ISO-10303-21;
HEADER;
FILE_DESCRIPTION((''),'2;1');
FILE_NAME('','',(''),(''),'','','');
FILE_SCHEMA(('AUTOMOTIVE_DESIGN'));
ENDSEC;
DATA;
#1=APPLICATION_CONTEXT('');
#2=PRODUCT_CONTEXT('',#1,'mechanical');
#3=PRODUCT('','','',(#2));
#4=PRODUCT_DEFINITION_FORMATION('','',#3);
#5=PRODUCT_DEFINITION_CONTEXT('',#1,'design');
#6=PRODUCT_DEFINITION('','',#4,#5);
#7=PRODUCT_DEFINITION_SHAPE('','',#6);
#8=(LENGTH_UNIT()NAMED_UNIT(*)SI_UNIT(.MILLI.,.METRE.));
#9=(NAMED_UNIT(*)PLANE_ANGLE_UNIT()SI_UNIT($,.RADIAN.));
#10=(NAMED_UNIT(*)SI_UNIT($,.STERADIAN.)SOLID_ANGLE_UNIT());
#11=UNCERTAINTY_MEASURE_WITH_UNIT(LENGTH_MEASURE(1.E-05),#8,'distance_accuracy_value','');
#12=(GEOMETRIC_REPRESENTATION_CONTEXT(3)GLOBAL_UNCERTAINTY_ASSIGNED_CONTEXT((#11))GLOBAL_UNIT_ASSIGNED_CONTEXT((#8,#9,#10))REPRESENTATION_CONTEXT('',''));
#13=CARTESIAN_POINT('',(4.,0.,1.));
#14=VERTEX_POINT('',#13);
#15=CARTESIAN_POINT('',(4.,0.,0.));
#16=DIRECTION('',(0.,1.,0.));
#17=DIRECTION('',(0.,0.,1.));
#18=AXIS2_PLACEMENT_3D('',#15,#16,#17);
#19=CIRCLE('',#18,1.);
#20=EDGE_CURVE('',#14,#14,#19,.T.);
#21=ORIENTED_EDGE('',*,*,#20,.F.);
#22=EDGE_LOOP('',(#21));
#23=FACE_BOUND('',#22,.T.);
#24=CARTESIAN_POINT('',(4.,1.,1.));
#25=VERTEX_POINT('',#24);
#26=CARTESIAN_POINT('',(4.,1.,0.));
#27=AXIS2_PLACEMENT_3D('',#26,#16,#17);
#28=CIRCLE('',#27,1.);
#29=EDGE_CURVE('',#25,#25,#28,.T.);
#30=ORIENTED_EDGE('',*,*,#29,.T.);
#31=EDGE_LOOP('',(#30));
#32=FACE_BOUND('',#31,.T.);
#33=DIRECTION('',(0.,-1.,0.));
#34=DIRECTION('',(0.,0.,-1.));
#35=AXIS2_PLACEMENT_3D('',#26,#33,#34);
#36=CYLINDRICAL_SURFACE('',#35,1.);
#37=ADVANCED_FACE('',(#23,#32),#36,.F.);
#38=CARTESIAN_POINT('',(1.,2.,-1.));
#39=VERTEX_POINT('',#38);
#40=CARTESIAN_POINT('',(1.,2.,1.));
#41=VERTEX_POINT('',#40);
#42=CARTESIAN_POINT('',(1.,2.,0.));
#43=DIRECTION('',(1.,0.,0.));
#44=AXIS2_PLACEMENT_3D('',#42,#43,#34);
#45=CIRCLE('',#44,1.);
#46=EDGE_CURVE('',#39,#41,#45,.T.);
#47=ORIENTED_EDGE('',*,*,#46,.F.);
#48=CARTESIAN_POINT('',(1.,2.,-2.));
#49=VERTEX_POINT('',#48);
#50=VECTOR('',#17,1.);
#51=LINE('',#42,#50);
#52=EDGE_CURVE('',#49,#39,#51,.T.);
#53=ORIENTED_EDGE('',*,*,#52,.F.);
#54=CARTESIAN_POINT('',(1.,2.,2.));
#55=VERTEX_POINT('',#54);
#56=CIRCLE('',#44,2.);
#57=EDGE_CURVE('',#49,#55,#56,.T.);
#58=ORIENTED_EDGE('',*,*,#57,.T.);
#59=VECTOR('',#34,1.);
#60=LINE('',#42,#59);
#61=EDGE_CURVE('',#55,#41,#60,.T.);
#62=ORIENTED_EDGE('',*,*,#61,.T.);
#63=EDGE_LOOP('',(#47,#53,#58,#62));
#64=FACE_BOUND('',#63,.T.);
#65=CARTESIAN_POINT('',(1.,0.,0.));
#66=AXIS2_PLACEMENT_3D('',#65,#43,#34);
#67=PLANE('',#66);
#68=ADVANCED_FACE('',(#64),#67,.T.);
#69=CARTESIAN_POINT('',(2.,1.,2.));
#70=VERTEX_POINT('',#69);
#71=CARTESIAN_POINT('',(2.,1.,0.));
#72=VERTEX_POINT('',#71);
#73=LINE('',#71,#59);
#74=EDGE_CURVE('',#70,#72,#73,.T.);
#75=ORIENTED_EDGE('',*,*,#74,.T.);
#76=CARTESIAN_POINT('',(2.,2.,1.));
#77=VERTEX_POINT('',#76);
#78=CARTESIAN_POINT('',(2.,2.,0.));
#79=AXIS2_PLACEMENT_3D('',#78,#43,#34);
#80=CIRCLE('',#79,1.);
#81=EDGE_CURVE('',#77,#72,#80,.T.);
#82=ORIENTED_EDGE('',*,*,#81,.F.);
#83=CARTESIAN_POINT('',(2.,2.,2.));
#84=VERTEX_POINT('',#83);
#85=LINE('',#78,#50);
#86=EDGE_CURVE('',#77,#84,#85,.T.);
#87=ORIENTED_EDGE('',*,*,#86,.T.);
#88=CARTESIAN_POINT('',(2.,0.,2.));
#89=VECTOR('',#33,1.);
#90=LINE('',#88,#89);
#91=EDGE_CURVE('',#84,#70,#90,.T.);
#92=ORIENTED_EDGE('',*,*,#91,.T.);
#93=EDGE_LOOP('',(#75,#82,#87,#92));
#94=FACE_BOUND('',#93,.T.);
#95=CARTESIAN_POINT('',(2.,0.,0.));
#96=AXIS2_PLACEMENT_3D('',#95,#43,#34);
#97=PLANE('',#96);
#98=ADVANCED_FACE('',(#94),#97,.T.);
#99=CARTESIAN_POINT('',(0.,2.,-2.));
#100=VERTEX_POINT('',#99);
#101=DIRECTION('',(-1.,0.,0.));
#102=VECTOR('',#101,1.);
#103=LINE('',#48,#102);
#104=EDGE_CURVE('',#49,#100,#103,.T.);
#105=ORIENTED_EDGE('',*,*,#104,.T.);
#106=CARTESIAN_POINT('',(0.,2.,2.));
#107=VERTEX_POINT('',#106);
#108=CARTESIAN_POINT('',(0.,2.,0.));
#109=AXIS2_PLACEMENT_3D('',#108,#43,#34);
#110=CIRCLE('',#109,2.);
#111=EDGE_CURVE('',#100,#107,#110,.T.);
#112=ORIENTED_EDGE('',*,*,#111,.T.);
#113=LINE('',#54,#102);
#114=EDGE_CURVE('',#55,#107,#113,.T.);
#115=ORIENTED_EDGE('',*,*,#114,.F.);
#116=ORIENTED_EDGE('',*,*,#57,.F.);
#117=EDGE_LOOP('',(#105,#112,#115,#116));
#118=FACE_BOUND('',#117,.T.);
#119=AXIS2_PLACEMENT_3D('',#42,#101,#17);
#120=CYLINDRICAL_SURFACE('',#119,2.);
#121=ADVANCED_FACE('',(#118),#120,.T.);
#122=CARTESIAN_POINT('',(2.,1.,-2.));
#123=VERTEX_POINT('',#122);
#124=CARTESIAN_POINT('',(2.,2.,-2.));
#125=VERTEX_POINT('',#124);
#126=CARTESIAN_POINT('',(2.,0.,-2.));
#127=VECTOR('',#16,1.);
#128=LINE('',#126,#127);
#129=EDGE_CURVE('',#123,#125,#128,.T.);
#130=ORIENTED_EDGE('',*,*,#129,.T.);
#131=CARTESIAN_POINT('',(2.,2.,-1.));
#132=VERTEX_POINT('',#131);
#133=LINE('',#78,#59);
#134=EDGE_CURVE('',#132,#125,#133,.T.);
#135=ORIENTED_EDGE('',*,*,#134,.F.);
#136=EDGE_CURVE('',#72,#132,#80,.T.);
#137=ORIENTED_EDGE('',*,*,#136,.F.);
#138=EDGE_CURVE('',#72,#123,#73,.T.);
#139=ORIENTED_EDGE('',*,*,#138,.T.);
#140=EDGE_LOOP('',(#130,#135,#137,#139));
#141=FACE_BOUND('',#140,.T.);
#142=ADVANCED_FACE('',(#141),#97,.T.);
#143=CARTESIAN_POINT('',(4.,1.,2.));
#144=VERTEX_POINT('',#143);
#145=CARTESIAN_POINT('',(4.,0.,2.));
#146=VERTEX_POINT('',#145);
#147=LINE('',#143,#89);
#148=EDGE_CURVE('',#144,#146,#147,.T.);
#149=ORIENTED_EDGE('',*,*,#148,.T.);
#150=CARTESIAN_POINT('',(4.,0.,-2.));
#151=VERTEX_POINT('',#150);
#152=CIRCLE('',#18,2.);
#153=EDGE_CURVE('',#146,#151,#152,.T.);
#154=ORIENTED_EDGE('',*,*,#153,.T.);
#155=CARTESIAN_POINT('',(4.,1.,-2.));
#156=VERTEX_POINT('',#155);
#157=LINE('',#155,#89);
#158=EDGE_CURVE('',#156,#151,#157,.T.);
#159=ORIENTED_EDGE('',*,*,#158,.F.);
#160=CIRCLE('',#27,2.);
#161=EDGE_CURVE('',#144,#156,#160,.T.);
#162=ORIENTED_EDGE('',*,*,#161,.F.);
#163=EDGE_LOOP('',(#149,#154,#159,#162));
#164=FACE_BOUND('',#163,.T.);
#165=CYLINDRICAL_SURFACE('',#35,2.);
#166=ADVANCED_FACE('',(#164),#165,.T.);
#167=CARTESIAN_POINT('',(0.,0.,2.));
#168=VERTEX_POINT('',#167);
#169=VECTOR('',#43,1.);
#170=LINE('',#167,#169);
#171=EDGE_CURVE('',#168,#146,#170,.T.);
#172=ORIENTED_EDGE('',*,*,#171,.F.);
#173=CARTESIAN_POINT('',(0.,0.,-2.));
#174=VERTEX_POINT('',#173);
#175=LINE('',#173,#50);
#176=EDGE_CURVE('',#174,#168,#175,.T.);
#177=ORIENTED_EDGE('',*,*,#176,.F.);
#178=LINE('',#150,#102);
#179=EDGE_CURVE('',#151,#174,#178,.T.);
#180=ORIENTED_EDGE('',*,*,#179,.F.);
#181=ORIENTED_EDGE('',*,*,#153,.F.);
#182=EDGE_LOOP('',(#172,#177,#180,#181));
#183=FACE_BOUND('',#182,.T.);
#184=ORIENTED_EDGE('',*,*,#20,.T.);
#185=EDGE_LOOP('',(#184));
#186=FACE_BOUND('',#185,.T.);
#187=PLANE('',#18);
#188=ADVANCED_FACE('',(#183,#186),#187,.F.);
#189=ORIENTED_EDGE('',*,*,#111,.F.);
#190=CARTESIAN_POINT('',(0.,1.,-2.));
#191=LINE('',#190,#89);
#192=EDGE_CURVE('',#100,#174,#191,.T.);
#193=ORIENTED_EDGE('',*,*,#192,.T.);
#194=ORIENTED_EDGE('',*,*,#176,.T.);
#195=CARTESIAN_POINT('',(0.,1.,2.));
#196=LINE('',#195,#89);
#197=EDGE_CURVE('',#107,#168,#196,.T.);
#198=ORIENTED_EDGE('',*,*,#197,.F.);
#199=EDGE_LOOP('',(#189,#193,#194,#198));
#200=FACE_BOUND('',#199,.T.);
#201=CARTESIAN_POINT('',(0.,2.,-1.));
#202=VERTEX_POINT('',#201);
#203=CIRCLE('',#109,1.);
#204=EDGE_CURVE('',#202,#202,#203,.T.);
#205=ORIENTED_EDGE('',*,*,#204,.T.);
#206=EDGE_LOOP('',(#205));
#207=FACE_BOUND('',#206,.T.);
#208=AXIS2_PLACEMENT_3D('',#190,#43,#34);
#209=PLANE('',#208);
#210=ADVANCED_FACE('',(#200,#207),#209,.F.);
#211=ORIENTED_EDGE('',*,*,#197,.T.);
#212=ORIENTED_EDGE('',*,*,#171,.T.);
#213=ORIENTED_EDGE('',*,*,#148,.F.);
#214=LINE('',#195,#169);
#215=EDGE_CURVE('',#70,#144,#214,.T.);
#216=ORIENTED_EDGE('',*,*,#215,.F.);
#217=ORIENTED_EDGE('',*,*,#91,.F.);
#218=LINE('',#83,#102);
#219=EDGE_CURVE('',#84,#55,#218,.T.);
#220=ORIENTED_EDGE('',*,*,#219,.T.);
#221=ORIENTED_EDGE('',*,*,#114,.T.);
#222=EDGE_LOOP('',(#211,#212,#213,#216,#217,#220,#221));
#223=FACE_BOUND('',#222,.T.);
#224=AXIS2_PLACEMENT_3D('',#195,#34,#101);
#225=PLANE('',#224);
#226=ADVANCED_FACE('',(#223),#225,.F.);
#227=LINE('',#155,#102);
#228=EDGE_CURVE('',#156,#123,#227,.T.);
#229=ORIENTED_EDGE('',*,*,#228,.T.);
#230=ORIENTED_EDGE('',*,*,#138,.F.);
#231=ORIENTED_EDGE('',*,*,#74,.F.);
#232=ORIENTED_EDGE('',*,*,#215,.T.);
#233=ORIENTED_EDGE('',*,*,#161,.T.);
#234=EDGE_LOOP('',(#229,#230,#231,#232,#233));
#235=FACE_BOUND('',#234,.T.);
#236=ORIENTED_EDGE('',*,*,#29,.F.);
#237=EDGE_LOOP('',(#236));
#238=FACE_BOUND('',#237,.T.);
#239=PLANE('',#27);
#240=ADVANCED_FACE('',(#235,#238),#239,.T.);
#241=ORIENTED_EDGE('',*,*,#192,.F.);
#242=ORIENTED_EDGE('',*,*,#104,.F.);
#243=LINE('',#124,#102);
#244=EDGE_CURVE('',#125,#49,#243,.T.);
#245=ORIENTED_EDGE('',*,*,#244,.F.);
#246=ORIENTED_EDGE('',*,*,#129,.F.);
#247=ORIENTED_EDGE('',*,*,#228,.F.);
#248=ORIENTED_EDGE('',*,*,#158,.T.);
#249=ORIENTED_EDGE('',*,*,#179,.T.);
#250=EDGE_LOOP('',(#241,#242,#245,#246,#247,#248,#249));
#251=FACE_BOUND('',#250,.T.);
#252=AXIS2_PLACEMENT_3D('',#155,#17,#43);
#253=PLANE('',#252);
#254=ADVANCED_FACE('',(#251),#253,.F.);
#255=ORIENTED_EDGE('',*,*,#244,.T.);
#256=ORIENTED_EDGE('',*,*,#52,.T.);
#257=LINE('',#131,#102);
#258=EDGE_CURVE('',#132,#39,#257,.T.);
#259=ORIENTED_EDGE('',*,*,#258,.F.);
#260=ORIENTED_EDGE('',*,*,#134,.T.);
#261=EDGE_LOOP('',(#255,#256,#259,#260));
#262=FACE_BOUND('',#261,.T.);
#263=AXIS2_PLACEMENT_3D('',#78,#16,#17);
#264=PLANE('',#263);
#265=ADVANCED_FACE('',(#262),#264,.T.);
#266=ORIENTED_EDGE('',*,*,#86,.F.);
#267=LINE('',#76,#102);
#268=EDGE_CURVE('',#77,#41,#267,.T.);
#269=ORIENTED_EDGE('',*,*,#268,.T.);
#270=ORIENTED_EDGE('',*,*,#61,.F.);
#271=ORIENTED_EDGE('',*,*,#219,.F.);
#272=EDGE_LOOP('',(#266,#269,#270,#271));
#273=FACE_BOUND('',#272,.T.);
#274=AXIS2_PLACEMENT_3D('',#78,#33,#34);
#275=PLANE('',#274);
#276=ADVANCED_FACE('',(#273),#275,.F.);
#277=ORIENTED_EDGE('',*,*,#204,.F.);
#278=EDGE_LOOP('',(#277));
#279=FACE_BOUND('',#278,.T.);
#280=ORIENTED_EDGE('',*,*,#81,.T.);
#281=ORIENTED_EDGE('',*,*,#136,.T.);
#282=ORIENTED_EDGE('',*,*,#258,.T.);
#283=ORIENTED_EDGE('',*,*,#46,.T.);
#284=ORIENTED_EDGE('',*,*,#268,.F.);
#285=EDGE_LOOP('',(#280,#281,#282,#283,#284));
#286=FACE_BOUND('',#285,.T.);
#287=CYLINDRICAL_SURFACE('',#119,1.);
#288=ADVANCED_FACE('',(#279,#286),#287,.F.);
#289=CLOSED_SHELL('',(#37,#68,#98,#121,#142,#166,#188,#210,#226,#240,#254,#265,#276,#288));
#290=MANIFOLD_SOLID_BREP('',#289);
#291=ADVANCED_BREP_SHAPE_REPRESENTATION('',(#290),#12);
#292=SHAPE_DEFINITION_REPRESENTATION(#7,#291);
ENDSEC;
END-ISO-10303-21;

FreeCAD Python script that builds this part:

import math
import FreeCAD as App
import Part
import Sketcher

V = App.Vector
Q = App.Units.Quantity

doc = App.newDocument("Part")
params = doc.addObject("Spreadsheet::Sheet", "Params")
for row, (alias, value) in enumerate([
    ("sketch1_diameter", "2 mm"),
    ("sketch1_radius", "2 mm"),
    ("pad1_length", "1 mm"),
    ("sketch2_diameter", "2 mm"),
    ("sketch2_radius", "2 mm"),
    ("sketch2_width", "2 mm"),
    ("pad2_length", "1 mm"),
    ("sketch3_radius", "0.999999 mm"),
    ("sketch3_width", "2 mm"),
    ("sketch3_height", "4 mm"),
    ("pad3_length", "2 mm"),
], start=1):
    params.set(f"A{row}", alias)
    params.set(f"B{row}", "=" + value)
    params.setAlias(f"B{row}", alias)

body = doc.addObject("PartDesign::Body", "Body")

# Sketch on XZ plane
sketch1 = doc.addObject("Sketcher::SketchObject", "Sketch")
body.addObject(sketch1)
sketch1.AttachmentSupport = (doc.XZ_Plane, [""])
sketch1.MapMode = "FlatFace"
sketch1.addGeometry(Part.LineSegment(V(4, -2, 0), V(0, -2, 0)), False)
sketch1.addGeometry(Part.LineSegment(V(0, -2, 0), V(0, 2, 0)), False)
sketch1.addGeometry(Part.LineSegment(V(0, 2, 0), V(4, 2, 0)), False)
sketch1.addGeometry(Part.ArcOfCircle(Part.Circle(V(4, 0, 0), V(0, 0, 1), 2), math.radians(-90), math.radians(90)), False)
sketch1.addGeometry(Part.Circle(V(4, 0, 0), V(0, 0, 1), 1), False)
sketch1.addConstraint(Sketcher.Constraint("Coincident", 0, 2, 1, 1))
sketch1.addConstraint(Sketcher.Constraint("Coincident", 1, 2, 2, 1))
sketch1.addConstraint(Sketcher.Constraint("Tangent", 2, 2, 3, 2))
sketch1.addConstraint(Sketcher.Constraint("Tangent", 3, 1, 0, 1))
sketch1.addConstraint(Sketcher.Constraint("Horizontal", 0))
sketch1.addConstraint(Sketcher.Constraint("Vertical", 1))
sketch1.addConstraint(Sketcher.Constraint("Horizontal", 2))
sketch1.addConstraint(Sketcher.Constraint("Coincident", 4, 3, 3, 3))
sketch1.addConstraint(Sketcher.Constraint("Symmetric", 0, 2, 1, 2, -1, 1))
sketch1.addConstraint(Sketcher.Constraint("Equal", 2, 1))
sketch1.addConstraint(Sketcher.Constraint("Diameter", 4, Q("2 mm")))
sketch1.addConstraint(Sketcher.Constraint("Radius", 3, Q("2 mm")))
sketch1.setExpression("Constraints[10]", "Params.sketch1_diameter")
sketch1.setExpression("Constraints[11]", "Params.sketch1_radius")
pad1 = doc.addObject("PartDesign::Pad", "Pad")
body.addObject(pad1)
pad1.Profile = sketch1
pad1.setExpression("Length", "Params.pad1_length")
pad1.Reversed = True

# Sketch on YZ plane
sketch2 = doc.addObject("Sketcher::SketchObject", "Sketch001")
body.addObject(sketch2)
sketch2.AttachmentSupport = (doc.YZ_Plane, [""])
sketch2.MapMode = "FlatFace"
sketch2.addGeometry(Part.LineSegment(V(2, 2, 0), V(0, 2, 0)), False)
sketch2.addGeometry(Part.LineSegment(V(0, 2, 0), V(0, -2, 0)), False)
sketch2.addGeometry(Part.LineSegment(V(0, -2, 0), V(2, -2, 0)), False)
sketch2.addGeometry(Part.ArcOfCircle(Part.Circle(V(2, 0, 0), V(0, 0, 1), 2), math.radians(-90), math.radians(90)), False)
sketch2.addGeometry(Part.Circle(V(2, 0, 0), V(0, 0, 1), 1), False)
sketch2.addConstraint(Sketcher.Constraint("Coincident", 0, 2, 1, 1))
sketch2.addConstraint(Sketcher.Constraint("Coincident", 1, 2, 2, 1))
sketch2.addConstraint(Sketcher.Constraint("Tangent", 2, 2, 3, 1))
sketch2.addConstraint(Sketcher.Constraint("Tangent", 3, 2, 0, 1))
sketch2.addConstraint(Sketcher.Constraint("Horizontal", 0))
sketch2.addConstraint(Sketcher.Constraint("Vertical", 1))
sketch2.addConstraint(Sketcher.Constraint("Horizontal", 2))
sketch2.addConstraint(Sketcher.Constraint("Coincident", 4, 3, 3, 3))
sketch2.addConstraint(Sketcher.Constraint("Symmetric", 0, 2, 1, 2, -1, 1))
sketch2.addConstraint(Sketcher.Constraint("Diameter", 4, Q("2 mm")))
sketch2.addConstraint(Sketcher.Constraint("Radius", 3, Q("2 mm")))
sketch2.addConstraint(Sketcher.Constraint("DistanceX", 0, 2, 0, 1, Q("2 mm")))
sketch2.setExpression("Constraints[9]", "Params.sketch2_diameter")
sketch2.setExpression("Constraints[10]", "Params.sketch2_radius")
sketch2.setExpression("Constraints[11]", "Params.sketch2_width")
pad2 = doc.addObject("PartDesign::Pad", "Pad001")
body.addObject(pad2)
pad2.Profile = sketch2
pad2.setExpression("Length", "Params.pad2_length")

# Sketch on YZ plane
sketch3 = doc.addObject("Sketcher::SketchObject", "Sketch002")
body.addObject(sketch3)
sketch3.AttachmentSupport = (doc.YZ_Plane, [""])
sketch3.MapMode = "FlatFace"
sketch3.addGeometry(Part.LineSegment(V(0, 2, 0), V(0, -2, 0)), False)
sketch3.addGeometry(Part.LineSegment(V(0, -2, 0), V(2, -2, 0)), False)
sketch3.addGeometry(Part.LineSegment(V(2, -2, 0), V(2, -1, 0)), False)
sketch3.addGeometry(Part.ArcOfCircle(Part.Circle(V(1.999999, -0.000001, 0), V(0, 0, 1), 0.999999), math.radians(179.999957), math.radians(270.000043)), False)
sketch3.addGeometry(Part.ArcOfCircle(Part.Circle(V(1.999999, 0.000001, 0), V(0, 0, 1), 0.999999), math.radians(89.999957), math.radians(180.000043)), False)
sketch3.addGeometry(Part.LineSegment(V(2, 1, 0), V(2, 2, 0)), False)
sketch3.addGeometry(Part.LineSegment(V(2, 2, 0), V(0, 2, 0)), False)
sketch3.addConstraint(Sketcher.Constraint("Coincident", 0, 2, 1, 1))
sketch3.addConstraint(Sketcher.Constraint("Coincident", 1, 2, 2, 1))
sketch3.addConstraint(Sketcher.Constraint("Coincident", 2, 2, 3, 2))
sketch3.addConstraint(Sketcher.Constraint("Tangent", 3, 1, 4, 2))
sketch3.addConstraint(Sketcher.Constraint("Coincident", 4, 1, 5, 1))
sketch3.addConstraint(Sketcher.Constraint("Coincident", 5, 2, 6, 1))
sketch3.addConstraint(Sketcher.Constraint("Coincident", 6, 2, 0, 1))
sketch3.addConstraint(Sketcher.Constraint("Vertical", 0))
sketch3.addConstraint(Sketcher.Constraint("Horizontal", 1))
sketch3.addConstraint(Sketcher.Constraint("Vertical", 2))
sketch3.addConstraint(Sketcher.Constraint("Vertical", 5))
sketch3.addConstraint(Sketcher.Constraint("Horizontal", 6))
sketch3.addConstraint(Sketcher.Constraint("Equal", 3, 4))
sketch3.addConstraint(Sketcher.Constraint("Symmetric", 0, 2, 6, 2, -1, 1))
sketch3.addConstraint(Sketcher.Constraint("Symmetric", 2, 2, 4, 1, -1))
sketch3.addConstraint(Sketcher.Constraint("PointOnObject", 3, 1, -1))
sketch3.addConstraint(Sketcher.Constraint("Vertical", 4, 3, 1, 2))
sketch3.addConstraint(Sketcher.Constraint("Radius", 3, Q("0.999999 mm")))
sketch3.addConstraint(Sketcher.Constraint("DistanceX", 1, 1, 1, 2, Q("2 mm")))
sketch3.addConstraint(Sketcher.Constraint("DistanceY", 0, 2, 0, 1, Q("4 mm")))
sketch3.setExpression("Constraints[17]", "Params.sketch3_radius")
sketch3.setExpression("Constraints[18]", "Params.sketch3_width")
sketch3.setExpression("Constraints[19]", "Params.sketch3_height")
pad3 = doc.addObject("PartDesign::Pad", "Pad002")
body.addObject(pad3)
pad3.Profile = sketch3
pad3.setExpression("Length", "Params.pad3_length")

doc.recompute()
